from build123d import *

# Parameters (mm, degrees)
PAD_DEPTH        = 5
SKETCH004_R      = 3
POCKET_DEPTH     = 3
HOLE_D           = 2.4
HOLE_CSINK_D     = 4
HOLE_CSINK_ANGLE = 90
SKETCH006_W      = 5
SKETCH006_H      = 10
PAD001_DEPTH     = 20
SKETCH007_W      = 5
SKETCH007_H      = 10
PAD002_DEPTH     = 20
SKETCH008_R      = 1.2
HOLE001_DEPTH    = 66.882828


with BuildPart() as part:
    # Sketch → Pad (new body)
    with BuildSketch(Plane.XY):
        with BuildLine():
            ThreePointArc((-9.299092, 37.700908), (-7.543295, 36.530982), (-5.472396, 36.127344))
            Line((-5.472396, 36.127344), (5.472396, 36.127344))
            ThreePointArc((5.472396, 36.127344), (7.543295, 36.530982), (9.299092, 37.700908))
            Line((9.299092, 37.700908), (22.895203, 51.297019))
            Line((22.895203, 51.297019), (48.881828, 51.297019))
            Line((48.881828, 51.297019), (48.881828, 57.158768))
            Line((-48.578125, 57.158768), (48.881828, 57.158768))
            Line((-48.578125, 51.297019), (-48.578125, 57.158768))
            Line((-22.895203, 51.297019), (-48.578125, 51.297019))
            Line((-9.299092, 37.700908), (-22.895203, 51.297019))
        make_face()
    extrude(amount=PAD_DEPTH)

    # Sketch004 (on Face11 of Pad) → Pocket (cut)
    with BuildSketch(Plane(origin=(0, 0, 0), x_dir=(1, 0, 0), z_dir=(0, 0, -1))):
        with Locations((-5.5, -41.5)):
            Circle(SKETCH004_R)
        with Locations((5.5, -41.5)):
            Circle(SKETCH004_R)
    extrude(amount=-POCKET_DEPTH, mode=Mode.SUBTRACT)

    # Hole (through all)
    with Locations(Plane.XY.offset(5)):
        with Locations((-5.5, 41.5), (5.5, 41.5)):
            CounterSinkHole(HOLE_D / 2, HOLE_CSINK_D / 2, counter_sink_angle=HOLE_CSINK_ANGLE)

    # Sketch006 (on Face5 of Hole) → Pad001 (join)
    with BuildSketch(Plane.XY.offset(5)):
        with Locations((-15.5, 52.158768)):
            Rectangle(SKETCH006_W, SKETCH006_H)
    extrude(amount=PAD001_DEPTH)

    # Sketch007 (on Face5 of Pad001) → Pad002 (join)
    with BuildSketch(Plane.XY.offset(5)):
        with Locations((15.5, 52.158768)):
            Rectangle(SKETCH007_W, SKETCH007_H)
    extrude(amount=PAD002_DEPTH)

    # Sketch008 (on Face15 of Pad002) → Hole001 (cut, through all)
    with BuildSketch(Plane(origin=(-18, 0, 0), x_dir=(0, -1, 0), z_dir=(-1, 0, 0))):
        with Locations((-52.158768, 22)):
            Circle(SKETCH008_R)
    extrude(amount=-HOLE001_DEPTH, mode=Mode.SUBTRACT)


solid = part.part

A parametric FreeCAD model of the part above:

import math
import FreeCAD as App
import Part
import Sketcher
Q = App.Units.Quantity

doc = App.newDocument("Part")
body = doc.addObject("PartDesign::Body", "Body")

# Sketch on XY plane
sketch1 = body.newObject("Sketcher::SketchObject", "Sketch")
sketch1.AttachmentSupport = (doc.getObject("XY_Plane"), [""])
sketch1.MapMode = "FlatFace"
sketch1.addGeometry([
    Part.ArcOfCircle(Part.Circle(App.Vector(-5.499999, 41.500004, 0), App.Vector(0, 0, 1), 5.37273), math.radians(-134.999979), math.radians(-89.705632)),  # 0
    Part.LineSegment(App.Vector(-5.472396, 36.127344, 0), App.Vector(5.472396, 36.127344, 0)),  # 1
    Part.ArcOfCircle(Part.Circle(App.Vector(5.499999, 41.500004, 0), App.Vector(0, 0, 1), 5.37273), math.radians(-90.294368), math.radians(-45.000021)),  # 2
    Part.LineSegment(App.Vector(9.299092, 37.700908, 0), App.Vector(22.895203, 51.297019, 0)),  # 3
    Part.LineSegment(App.Vector(22.895203, 51.297019, 0), App.Vector(48.881828, 51.297019, 0)),  # 4
    Part.LineSegment(App.Vector(48.881828, 51.297019, 0), App.Vector(48.881828, 57.158768, 0)),  # 5
    Part.LineSegment(App.Vector(48.881828, 57.158768, 0), App.Vector(-48.578125, 57.158768, 0)),  # 6
    Part.LineSegment(App.Vector(-48.578125, 57.158768, 0), App.Vector(-48.578125, 51.297019, 0)),  # 7
    Part.LineSegment(App.Vector(-48.578125, 51.297019, 0), App.Vector(-22.895203, 51.297019, 0)),  # 8
    Part.LineSegment(App.Vector(-22.895203, 51.297019, 0), App.Vector(-9.299092, 37.700908, 0)),  # 9
], False)
sketch1.addConstraint([
    Sketcher.Constraint("Coincident", 0, 2, 1, 1),
    Sketcher.Constraint("Coincident", 1, 2, 2, 1),
    Sketcher.Constraint("Tangent", 2, 2, 3, 1),
    Sketcher.Constraint("Coincident", 3, 2, 4, 1),
    Sketcher.Constraint("Coincident", 4, 2, 5, 1),
    Sketcher.Constraint("Coincident", 5, 2, 6, 1),
    Sketcher.Constraint("Coincident", 6, 2, 7, 1),
    Sketcher.Constraint("Coincident", 7, 2, 8, 1),
    Sketcher.Constraint("Coincident", 8, 2, 9, 1),
    Sketcher.Constraint("Tangent", 9, 2, 0, 1),
    Sketcher.Constraint("Horizontal", 1),
    Sketcher.Constraint("Horizontal", 4),
    Sketcher.Constraint("Vertical", 5),
    Sketcher.Constraint("Horizontal", 6),
    Sketcher.Constraint("Vertical", 7),
    Sketcher.Constraint("Horizontal", 8),
    Sketcher.Constraint("Equal", 0, 2),
    Sketcher.Constraint("Symmetric", 0, 3, 2, 3, -2),
    Sketcher.Constraint("Symmetric", 3, 2, 8, 2, -2),
    Sketcher.Constraint("Perpendicular", 3, 9),
    Sketcher.Constraint("DistanceX", 0, 3, 2, 3, Q("10.999999 mm")),
    Sketcher.Constraint("Radius", 0, Q("5.37273 mm")),
    Sketcher.Constraint("DistanceY", 5, 1, 5, 2, Q("5.861749 mm")),
    Sketcher.Constraint("DistanceX", 0, 2, 3, 2, Q("28.367599 mm")),
    Sketcher.Constraint("DistanceX", 1, 1, 1, 2, Q("10.944792 mm")),
    Sketcher.Constraint("DistanceX", 4, 1, 4, 2, Q("25.986625 mm")),
    Sketcher.Constraint("DistanceX", 6, 2, 6, 1, Q("97.459953 mm")),
    Sketcher.Constraint("DistanceY", -1, 1, 3, 2, Q("51.297019 mm")),
])
pad1 = body.newObject("PartDesign::Pad", "Pad")
pad1.Profile = sketch1
pad1.Length = 5

# Sketch on XY plane
sketch2 = body.newObject("Sketcher::SketchObject", "Sketch001")
sketch2.AttachmentSupport = (doc.getObject("XY_Plane"), [""])
sketch2.MapMode = "FlatFace"
sketch2.addGeometry([
    Part.Circle(App.Vector(-5.5, 41.5, 0), App.Vector(0, 0, 1), 3),
    Part.Circle(App.Vector(5.5, 41.5, 0), App.Vector(0, 0, 1), 3),
], False)
sketch2.addConstraint([
    Sketcher.Constraint("Equal", 0, 1),
    Sketcher.Constraint("Symmetric", 0, 3, 1, 3, -2),
    Sketcher.Constraint("Diameter", 0, Q("6 mm")),
    Sketcher.Constraint("DistanceX", 0, 3, 1, 3, Q("11 mm")),
    Sketcher.Constraint("DistanceY", -1, 1, 0, 3, Q("41.5 mm")),
])
pocket1 = body.newObject("PartDesign::Pocket", "Pocket")
pocket1.Profile = sketch2
pocket1.Length = 3
pocket1.Reversed = True

# Sketch on XY plane
sketch3 = body.newObject("Sketcher::SketchObject", "Sketch002")
sketch3.AttachmentSupport = (doc.getObject("XY_Plane"), [""])
sketch3.MapMode = "FlatFace"
sketch3.AttachmentOffset = App.Placement(App.Vector(0, 0, 5), App.Rotation())
sketch3.addGeometry([
    Part.Circle(App.Vector(-5.5, 41.5, 0), App.Vector(0, 0, 1), 1.2),
    Part.Circle(App.Vector(5.5, 41.5, 0), App.Vector(0, 0, 1), 1.2),
], False)
sketch3.addConstraint([
    Sketcher.Constraint("Equal", 0, 1),
    Sketcher.Constraint("Symmetric", 0, 3, 1, 3, -2),
    Sketcher.Constraint("Diameter", 0, Q("2.4 mm")),
    Sketcher.Constraint("DistanceX", 0, 3, 1, 3, Q("11 mm")),
    Sketcher.Constraint("DistanceY", -1, 1, 0, 3, Q("41.5 mm")),
])
doc.recompute()
hole = body.newObject("PartDesign::Hole", "Hole")
hole.Profile = sketch3
hole.ThreadType = "None"
hole.Diameter = 2.4
hole.DepthType = "ThroughAll"
hole.HoleCutType = "Countersink"
hole.HoleCutDiameter = 4
hole.HoleCutCountersinkAngle = 90

# Sketch on XY plane
sketch4 = body.newObject("Sketcher::SketchObject", "Sketch003")
sketch4.AttachmentSupport = (doc.getObject("XY_Plane"), [""])
sketch4.MapMode = "FlatFace"
sketch4.AttachmentOffset = App.Placement(App.Vector(0, 0, 5), App.Rotation())
sketch4.addGeometry([
    Part.LineSegment(App.Vector(-18, 57, 0), App.Vector(-18, 47, 0)),
    Part.LineSegment(App.Vector(-18, 47, 0), App.Vector(-13, 47, 0)),
    Part.LineSegment(App.Vector(-13, 47, 0), App.Vector(-13, 57, 0)),
    Part.LineSegment(App.Vector(-13, 57, 0), App.Vector(-18, 57, 0)),
], False)
sketch4.addConstraint([
    Sketcher.Constraint("Coincident", 0, 2, 1, 1),
    Sketcher.Constraint("Coincident", 1, 2, 2, 1),
    Sketcher.Constraint("Coincident", 2, 2, 3, 1),
    Sketcher.Constraint("Coincident", 3, 2, 0, 1),
    Sketcher.Constraint("Vertical", 0),
    Sketcher.Constraint("Horizontal", 1),
    Sketcher.Constraint("Vertical", 2),
    Sketcher.Constraint("Horizontal", 3),
    Sketcher.Constraint("DistanceX", 1, 1, 1, 2, Q("5 mm")),
    Sketcher.Constraint("DistanceY", 0, 2, 0, 1, Q("10 mm")),
    Sketcher.Constraint("DistanceX", 0, 2, -1, 1, Q("18 mm")),
    Sketcher.Constraint("DistanceY", -1, 1, 0, 2, Q("47.158768 mm")),
])
pad2 = body.newObject("PartDesign::Pad", "Pad001")
pad2.Profile = sketch4
pad2.Length = 20

# Sketch on XY plane
sketch5 = body.newObject("Sketcher::SketchObject", "Sketch004")
sketch5.AttachmentSupport = (doc.getObject("XY_Plane"), [""])
sketch5.MapMode = "FlatFace"
sketch5.AttachmentOffset = App.Placement(App.Vector(0, 0, 5), App.Rotation())
sketch5.addGeometry([
    Part.LineSegment(App.Vector(13, 57, 0), App.Vector(13, 47, 0)),
    Part.LineSegment(App.Vector(13, 47, 0), App.Vector(18, 47, 0)),
    Part.LineSegment(App.Vector(18, 47, 0), App.Vector(18, 57, 0)),
    Part.LineSegment(App.Vector(18, 57, 0), App.Vector(13, 57, 0)),
], False)
sketch5.addConstraint([
    Sketcher.Constraint("Coincident", 0, 2, 1, 1),
    Sketcher.Constraint("Coincident", 1, 2, 2, 1),
    Sketcher.Constraint("Coincident", 2, 2, 3, 1),
    Sketcher.Constraint("Coincident", 3, 2, 0, 1),
    Sketcher.Constraint("Vertical", 0),
    Sketcher.Constraint("Horizontal", 1),
    Sketcher.Constraint("Vertical", 2),
    Sketcher.Constraint("Horizontal", 3),
    Sketcher.Constraint("DistanceX", 1, 1, 1, 2, Q("5 mm")),
    Sketcher.Constraint("DistanceY", 0, 2, 0, 1, Q("10 mm")),
    Sketcher.Constraint("DistanceX", -1, 1, 0, 2, Q("13 mm")),
    Sketcher.Constraint("DistanceY", -1, 1, 0, 2, Q("47.158768 mm")),
])
pad3 = body.newObject("PartDesign::Pad", "Pad002")
pad3.Profile = sketch5
pad3.Length = 20

# Sketch on YZ plane
sketch6 = body.newObject("Sketcher::SketchObject", "Sketch005")
sketch6.AttachmentSupport = (doc.getObject("YZ_Plane"), [""])
sketch6.MapMode = "FlatFace"
sketch6.AttachmentOffset = App.Placement(App.Vector(0, 0, -18), App.Rotation())
sketch6.addGeometry(Part.Circle(App.Vector(52.2, 22, 0), App.Vector(0, 0, 1), 1.2), False)
sketch6.addConstraint([
    Sketcher.Constraint("Diameter", 0, Q("2.4 mm")),
    Sketcher.Constraint("DistanceY", -1, 1, 0, 3, Q("22 mm")),
    Sketcher.Constraint("DistanceX", -1, 1, 0, 3, Q("52.158768 mm")),
])
pocket2 = body.newObject("PartDesign::Pocket", "Pocket001")
pocket2.Profile = sketch6
pocket2.Type = "ThroughAll"
pocket2.Reversed = True

doc.recompute()
